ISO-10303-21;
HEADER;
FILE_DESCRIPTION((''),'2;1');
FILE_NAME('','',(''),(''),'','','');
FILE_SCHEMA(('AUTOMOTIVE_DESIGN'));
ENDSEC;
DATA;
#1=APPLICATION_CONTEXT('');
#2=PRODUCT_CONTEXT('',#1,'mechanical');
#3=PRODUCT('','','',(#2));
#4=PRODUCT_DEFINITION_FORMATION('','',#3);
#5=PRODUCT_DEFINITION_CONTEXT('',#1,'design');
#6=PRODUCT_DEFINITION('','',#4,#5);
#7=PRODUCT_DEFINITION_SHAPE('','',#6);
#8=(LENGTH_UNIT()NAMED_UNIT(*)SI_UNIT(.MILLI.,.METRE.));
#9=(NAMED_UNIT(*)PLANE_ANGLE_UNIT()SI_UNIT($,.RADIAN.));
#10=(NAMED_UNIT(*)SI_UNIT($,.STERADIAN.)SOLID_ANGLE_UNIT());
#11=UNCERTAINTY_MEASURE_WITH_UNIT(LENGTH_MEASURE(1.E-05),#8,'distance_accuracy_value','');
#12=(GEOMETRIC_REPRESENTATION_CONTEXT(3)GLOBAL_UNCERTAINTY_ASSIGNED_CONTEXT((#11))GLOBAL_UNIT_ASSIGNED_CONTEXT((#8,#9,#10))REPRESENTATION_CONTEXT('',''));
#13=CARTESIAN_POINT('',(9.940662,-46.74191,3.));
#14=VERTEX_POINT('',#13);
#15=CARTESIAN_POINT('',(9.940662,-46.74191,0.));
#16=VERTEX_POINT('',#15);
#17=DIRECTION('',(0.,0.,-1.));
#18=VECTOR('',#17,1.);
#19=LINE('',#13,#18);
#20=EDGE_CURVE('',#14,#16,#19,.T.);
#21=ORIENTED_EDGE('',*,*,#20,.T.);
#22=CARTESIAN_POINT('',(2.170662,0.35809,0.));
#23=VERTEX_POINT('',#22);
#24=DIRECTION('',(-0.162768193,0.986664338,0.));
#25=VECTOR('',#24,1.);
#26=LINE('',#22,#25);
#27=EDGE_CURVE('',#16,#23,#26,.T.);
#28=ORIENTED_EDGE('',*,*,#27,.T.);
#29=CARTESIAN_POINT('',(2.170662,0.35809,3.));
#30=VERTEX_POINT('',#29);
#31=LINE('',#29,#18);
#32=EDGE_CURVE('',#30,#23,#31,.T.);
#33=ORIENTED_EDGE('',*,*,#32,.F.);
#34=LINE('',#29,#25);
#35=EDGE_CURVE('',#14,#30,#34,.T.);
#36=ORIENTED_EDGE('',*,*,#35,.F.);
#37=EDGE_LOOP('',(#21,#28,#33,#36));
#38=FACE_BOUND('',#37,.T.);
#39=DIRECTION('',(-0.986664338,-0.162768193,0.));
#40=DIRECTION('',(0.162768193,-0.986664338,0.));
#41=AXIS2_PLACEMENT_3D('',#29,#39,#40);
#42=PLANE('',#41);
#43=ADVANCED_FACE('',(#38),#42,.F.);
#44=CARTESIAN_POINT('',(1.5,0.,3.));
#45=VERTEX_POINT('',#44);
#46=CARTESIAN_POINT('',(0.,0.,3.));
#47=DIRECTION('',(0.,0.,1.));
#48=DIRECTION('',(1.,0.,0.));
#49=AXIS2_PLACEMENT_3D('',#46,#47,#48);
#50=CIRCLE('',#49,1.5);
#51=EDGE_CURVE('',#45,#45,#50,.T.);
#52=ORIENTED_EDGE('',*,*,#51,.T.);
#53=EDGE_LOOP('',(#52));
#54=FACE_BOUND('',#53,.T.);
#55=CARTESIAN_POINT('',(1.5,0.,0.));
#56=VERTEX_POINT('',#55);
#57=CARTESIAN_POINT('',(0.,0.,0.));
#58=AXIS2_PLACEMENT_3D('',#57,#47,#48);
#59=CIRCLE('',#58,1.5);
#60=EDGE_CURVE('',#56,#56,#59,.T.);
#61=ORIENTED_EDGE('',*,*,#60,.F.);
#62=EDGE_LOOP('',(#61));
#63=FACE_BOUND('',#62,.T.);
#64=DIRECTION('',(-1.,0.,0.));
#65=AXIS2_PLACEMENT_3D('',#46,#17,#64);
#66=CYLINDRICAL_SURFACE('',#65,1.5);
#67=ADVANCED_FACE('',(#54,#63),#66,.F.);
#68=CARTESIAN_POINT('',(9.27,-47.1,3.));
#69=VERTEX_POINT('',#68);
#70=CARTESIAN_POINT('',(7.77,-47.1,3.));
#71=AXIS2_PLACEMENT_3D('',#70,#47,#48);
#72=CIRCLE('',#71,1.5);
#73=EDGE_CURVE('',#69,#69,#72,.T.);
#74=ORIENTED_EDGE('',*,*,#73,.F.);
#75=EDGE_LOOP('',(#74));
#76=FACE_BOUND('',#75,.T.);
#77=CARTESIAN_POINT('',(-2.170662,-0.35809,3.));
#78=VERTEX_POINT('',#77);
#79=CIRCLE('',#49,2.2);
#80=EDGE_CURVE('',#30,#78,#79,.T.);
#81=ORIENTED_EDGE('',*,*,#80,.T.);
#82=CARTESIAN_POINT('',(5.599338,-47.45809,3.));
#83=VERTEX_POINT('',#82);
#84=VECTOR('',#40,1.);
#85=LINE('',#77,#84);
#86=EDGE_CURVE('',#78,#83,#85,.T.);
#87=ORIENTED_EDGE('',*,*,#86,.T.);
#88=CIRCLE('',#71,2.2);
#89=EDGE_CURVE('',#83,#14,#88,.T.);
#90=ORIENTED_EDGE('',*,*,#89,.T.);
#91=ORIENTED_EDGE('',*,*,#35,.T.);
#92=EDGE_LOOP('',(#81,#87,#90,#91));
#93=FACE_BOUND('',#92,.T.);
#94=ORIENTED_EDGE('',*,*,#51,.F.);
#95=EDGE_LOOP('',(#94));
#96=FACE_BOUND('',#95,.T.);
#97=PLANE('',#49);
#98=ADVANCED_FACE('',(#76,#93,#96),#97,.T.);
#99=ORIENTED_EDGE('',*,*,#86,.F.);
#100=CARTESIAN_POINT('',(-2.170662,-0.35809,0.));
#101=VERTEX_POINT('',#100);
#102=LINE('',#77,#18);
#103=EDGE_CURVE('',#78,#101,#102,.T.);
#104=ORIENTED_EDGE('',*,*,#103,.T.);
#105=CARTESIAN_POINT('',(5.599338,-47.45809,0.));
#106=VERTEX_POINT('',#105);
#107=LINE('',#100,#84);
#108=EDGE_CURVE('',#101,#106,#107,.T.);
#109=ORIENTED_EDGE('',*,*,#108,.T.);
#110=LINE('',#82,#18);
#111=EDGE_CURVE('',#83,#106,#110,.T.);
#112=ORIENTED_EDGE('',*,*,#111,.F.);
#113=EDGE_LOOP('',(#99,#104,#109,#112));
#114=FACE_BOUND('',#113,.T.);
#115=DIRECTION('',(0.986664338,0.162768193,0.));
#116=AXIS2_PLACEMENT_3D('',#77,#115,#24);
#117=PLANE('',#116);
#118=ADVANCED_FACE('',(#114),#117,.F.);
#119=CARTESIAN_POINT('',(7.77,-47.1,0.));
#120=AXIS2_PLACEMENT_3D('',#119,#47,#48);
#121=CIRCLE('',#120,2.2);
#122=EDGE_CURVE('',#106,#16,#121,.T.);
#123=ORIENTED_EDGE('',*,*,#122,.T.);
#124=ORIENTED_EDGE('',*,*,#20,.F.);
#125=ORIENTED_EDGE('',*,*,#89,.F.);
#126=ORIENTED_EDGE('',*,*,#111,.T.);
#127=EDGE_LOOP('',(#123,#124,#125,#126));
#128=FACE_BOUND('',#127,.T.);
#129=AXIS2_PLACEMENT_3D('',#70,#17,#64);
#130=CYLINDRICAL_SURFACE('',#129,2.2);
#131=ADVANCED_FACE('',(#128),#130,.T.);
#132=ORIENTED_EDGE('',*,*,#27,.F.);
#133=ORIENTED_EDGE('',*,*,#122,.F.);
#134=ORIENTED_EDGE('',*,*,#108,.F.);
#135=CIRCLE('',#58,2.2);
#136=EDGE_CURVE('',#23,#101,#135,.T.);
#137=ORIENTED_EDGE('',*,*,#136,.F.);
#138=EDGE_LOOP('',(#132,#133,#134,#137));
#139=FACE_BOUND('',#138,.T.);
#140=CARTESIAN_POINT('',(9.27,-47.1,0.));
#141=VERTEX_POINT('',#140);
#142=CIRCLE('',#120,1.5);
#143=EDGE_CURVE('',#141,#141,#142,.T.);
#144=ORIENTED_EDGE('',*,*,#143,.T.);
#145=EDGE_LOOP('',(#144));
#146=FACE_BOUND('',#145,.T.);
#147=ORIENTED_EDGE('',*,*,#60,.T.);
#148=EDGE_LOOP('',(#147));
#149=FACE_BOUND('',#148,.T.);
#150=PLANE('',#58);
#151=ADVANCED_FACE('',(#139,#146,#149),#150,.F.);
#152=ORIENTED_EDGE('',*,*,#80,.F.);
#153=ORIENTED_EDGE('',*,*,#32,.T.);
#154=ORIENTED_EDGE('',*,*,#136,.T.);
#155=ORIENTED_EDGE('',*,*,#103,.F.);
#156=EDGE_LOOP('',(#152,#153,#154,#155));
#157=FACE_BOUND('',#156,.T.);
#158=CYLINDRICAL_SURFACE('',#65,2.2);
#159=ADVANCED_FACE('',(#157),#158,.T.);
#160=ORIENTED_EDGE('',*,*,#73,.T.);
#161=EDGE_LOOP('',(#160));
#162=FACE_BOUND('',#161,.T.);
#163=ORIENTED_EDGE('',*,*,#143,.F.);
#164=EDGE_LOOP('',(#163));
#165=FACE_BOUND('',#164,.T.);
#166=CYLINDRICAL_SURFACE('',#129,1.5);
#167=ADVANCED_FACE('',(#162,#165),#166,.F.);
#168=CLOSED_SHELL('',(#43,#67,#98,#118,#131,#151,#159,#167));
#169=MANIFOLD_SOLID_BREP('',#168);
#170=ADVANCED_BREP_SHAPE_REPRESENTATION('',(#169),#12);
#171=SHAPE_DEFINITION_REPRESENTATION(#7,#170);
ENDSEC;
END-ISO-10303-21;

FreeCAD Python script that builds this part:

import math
import FreeCAD as App
import Part
import Sketcher
Q = App.Units.Quantity

doc = App.newDocument("Part")
body = doc.addObject("PartDesign::Body", "Body")

sketch1 = body.newObject("Sketcher::SketchObject", "Sketch")
sketch1.AttachmentSupport = (doc.getObject("XY_Plane"), [""])
sketch1.MapMode = "FlatFace"
sketch1.addGeometry([
    Part.LineSegment(App.Vector(9.940662, -46.74191, 0), App.Vector(2.170662, 0.35809, 0)),
    Part.ArcOfCircle(Part.Circle(App.Vector(0, 0, 0), App.Vector(0, 0, 1), 2.2), math.radians(9.367609), math.radians(189.367609)),
    Part.LineSegment(App.Vector(-2.170662, -0.35809, 0), App.Vector(5.599338, -47.45809, 0)),
    Part.ArcOfCircle(Part.Circle(App.Vector(7.77, -47.1, 0), App.Vector(0, 0, 1), 2.2), math.radians(-170.632391), math.radians(9.367609)),
    Part.Circle(App.Vector(7.77, -47.1, 0), App.Vector(0, 0, 1), 1.5),
    Part.Circle(App.Vector(0, 0, 0), App.Vector(0, 0, 1), 1.5),
], False)
sketch1.addConstraint([
    Sketcher.Constraint("Tangent", 0, 2, 1, 1),
    Sketcher.Constraint("Tangent", 1, 2, 2, 1),
    Sketcher.Constraint("Tangent", 2, 2, 3, 1),
    Sketcher.Constraint("Tangent", 3, 2, 0, 1),
    Sketcher.Constraint("Coincident", 1, 3, -1, 1),
    Sketcher.Constraint("Coincident", 5, 3, -1, 1),
    Sketcher.Constraint("Coincident", 4, 3, 3, 3),
    Sketcher.Constraint("Equal", 1, 3),
    Sketcher.Constraint("Equal", 4, 5),
    Sketcher.Constraint("Diameter", 4, Q("3 mm")),
    Sketcher.Constraint("Radius", 1, Q("2.2 mm")),
    Sketcher.Constraint("DistanceY", 3, 3, -1, 1, Q("47.1 mm")),
    Sketcher.Constraint("DistanceX", -1, 1, 3, 3, Q("7.77 mm")),
])
pad1 = body.newObject("PartDesign::Pad", "Pad")
pad1.Profile = sketch1
pad1.Length = 3

doc.recompute()
